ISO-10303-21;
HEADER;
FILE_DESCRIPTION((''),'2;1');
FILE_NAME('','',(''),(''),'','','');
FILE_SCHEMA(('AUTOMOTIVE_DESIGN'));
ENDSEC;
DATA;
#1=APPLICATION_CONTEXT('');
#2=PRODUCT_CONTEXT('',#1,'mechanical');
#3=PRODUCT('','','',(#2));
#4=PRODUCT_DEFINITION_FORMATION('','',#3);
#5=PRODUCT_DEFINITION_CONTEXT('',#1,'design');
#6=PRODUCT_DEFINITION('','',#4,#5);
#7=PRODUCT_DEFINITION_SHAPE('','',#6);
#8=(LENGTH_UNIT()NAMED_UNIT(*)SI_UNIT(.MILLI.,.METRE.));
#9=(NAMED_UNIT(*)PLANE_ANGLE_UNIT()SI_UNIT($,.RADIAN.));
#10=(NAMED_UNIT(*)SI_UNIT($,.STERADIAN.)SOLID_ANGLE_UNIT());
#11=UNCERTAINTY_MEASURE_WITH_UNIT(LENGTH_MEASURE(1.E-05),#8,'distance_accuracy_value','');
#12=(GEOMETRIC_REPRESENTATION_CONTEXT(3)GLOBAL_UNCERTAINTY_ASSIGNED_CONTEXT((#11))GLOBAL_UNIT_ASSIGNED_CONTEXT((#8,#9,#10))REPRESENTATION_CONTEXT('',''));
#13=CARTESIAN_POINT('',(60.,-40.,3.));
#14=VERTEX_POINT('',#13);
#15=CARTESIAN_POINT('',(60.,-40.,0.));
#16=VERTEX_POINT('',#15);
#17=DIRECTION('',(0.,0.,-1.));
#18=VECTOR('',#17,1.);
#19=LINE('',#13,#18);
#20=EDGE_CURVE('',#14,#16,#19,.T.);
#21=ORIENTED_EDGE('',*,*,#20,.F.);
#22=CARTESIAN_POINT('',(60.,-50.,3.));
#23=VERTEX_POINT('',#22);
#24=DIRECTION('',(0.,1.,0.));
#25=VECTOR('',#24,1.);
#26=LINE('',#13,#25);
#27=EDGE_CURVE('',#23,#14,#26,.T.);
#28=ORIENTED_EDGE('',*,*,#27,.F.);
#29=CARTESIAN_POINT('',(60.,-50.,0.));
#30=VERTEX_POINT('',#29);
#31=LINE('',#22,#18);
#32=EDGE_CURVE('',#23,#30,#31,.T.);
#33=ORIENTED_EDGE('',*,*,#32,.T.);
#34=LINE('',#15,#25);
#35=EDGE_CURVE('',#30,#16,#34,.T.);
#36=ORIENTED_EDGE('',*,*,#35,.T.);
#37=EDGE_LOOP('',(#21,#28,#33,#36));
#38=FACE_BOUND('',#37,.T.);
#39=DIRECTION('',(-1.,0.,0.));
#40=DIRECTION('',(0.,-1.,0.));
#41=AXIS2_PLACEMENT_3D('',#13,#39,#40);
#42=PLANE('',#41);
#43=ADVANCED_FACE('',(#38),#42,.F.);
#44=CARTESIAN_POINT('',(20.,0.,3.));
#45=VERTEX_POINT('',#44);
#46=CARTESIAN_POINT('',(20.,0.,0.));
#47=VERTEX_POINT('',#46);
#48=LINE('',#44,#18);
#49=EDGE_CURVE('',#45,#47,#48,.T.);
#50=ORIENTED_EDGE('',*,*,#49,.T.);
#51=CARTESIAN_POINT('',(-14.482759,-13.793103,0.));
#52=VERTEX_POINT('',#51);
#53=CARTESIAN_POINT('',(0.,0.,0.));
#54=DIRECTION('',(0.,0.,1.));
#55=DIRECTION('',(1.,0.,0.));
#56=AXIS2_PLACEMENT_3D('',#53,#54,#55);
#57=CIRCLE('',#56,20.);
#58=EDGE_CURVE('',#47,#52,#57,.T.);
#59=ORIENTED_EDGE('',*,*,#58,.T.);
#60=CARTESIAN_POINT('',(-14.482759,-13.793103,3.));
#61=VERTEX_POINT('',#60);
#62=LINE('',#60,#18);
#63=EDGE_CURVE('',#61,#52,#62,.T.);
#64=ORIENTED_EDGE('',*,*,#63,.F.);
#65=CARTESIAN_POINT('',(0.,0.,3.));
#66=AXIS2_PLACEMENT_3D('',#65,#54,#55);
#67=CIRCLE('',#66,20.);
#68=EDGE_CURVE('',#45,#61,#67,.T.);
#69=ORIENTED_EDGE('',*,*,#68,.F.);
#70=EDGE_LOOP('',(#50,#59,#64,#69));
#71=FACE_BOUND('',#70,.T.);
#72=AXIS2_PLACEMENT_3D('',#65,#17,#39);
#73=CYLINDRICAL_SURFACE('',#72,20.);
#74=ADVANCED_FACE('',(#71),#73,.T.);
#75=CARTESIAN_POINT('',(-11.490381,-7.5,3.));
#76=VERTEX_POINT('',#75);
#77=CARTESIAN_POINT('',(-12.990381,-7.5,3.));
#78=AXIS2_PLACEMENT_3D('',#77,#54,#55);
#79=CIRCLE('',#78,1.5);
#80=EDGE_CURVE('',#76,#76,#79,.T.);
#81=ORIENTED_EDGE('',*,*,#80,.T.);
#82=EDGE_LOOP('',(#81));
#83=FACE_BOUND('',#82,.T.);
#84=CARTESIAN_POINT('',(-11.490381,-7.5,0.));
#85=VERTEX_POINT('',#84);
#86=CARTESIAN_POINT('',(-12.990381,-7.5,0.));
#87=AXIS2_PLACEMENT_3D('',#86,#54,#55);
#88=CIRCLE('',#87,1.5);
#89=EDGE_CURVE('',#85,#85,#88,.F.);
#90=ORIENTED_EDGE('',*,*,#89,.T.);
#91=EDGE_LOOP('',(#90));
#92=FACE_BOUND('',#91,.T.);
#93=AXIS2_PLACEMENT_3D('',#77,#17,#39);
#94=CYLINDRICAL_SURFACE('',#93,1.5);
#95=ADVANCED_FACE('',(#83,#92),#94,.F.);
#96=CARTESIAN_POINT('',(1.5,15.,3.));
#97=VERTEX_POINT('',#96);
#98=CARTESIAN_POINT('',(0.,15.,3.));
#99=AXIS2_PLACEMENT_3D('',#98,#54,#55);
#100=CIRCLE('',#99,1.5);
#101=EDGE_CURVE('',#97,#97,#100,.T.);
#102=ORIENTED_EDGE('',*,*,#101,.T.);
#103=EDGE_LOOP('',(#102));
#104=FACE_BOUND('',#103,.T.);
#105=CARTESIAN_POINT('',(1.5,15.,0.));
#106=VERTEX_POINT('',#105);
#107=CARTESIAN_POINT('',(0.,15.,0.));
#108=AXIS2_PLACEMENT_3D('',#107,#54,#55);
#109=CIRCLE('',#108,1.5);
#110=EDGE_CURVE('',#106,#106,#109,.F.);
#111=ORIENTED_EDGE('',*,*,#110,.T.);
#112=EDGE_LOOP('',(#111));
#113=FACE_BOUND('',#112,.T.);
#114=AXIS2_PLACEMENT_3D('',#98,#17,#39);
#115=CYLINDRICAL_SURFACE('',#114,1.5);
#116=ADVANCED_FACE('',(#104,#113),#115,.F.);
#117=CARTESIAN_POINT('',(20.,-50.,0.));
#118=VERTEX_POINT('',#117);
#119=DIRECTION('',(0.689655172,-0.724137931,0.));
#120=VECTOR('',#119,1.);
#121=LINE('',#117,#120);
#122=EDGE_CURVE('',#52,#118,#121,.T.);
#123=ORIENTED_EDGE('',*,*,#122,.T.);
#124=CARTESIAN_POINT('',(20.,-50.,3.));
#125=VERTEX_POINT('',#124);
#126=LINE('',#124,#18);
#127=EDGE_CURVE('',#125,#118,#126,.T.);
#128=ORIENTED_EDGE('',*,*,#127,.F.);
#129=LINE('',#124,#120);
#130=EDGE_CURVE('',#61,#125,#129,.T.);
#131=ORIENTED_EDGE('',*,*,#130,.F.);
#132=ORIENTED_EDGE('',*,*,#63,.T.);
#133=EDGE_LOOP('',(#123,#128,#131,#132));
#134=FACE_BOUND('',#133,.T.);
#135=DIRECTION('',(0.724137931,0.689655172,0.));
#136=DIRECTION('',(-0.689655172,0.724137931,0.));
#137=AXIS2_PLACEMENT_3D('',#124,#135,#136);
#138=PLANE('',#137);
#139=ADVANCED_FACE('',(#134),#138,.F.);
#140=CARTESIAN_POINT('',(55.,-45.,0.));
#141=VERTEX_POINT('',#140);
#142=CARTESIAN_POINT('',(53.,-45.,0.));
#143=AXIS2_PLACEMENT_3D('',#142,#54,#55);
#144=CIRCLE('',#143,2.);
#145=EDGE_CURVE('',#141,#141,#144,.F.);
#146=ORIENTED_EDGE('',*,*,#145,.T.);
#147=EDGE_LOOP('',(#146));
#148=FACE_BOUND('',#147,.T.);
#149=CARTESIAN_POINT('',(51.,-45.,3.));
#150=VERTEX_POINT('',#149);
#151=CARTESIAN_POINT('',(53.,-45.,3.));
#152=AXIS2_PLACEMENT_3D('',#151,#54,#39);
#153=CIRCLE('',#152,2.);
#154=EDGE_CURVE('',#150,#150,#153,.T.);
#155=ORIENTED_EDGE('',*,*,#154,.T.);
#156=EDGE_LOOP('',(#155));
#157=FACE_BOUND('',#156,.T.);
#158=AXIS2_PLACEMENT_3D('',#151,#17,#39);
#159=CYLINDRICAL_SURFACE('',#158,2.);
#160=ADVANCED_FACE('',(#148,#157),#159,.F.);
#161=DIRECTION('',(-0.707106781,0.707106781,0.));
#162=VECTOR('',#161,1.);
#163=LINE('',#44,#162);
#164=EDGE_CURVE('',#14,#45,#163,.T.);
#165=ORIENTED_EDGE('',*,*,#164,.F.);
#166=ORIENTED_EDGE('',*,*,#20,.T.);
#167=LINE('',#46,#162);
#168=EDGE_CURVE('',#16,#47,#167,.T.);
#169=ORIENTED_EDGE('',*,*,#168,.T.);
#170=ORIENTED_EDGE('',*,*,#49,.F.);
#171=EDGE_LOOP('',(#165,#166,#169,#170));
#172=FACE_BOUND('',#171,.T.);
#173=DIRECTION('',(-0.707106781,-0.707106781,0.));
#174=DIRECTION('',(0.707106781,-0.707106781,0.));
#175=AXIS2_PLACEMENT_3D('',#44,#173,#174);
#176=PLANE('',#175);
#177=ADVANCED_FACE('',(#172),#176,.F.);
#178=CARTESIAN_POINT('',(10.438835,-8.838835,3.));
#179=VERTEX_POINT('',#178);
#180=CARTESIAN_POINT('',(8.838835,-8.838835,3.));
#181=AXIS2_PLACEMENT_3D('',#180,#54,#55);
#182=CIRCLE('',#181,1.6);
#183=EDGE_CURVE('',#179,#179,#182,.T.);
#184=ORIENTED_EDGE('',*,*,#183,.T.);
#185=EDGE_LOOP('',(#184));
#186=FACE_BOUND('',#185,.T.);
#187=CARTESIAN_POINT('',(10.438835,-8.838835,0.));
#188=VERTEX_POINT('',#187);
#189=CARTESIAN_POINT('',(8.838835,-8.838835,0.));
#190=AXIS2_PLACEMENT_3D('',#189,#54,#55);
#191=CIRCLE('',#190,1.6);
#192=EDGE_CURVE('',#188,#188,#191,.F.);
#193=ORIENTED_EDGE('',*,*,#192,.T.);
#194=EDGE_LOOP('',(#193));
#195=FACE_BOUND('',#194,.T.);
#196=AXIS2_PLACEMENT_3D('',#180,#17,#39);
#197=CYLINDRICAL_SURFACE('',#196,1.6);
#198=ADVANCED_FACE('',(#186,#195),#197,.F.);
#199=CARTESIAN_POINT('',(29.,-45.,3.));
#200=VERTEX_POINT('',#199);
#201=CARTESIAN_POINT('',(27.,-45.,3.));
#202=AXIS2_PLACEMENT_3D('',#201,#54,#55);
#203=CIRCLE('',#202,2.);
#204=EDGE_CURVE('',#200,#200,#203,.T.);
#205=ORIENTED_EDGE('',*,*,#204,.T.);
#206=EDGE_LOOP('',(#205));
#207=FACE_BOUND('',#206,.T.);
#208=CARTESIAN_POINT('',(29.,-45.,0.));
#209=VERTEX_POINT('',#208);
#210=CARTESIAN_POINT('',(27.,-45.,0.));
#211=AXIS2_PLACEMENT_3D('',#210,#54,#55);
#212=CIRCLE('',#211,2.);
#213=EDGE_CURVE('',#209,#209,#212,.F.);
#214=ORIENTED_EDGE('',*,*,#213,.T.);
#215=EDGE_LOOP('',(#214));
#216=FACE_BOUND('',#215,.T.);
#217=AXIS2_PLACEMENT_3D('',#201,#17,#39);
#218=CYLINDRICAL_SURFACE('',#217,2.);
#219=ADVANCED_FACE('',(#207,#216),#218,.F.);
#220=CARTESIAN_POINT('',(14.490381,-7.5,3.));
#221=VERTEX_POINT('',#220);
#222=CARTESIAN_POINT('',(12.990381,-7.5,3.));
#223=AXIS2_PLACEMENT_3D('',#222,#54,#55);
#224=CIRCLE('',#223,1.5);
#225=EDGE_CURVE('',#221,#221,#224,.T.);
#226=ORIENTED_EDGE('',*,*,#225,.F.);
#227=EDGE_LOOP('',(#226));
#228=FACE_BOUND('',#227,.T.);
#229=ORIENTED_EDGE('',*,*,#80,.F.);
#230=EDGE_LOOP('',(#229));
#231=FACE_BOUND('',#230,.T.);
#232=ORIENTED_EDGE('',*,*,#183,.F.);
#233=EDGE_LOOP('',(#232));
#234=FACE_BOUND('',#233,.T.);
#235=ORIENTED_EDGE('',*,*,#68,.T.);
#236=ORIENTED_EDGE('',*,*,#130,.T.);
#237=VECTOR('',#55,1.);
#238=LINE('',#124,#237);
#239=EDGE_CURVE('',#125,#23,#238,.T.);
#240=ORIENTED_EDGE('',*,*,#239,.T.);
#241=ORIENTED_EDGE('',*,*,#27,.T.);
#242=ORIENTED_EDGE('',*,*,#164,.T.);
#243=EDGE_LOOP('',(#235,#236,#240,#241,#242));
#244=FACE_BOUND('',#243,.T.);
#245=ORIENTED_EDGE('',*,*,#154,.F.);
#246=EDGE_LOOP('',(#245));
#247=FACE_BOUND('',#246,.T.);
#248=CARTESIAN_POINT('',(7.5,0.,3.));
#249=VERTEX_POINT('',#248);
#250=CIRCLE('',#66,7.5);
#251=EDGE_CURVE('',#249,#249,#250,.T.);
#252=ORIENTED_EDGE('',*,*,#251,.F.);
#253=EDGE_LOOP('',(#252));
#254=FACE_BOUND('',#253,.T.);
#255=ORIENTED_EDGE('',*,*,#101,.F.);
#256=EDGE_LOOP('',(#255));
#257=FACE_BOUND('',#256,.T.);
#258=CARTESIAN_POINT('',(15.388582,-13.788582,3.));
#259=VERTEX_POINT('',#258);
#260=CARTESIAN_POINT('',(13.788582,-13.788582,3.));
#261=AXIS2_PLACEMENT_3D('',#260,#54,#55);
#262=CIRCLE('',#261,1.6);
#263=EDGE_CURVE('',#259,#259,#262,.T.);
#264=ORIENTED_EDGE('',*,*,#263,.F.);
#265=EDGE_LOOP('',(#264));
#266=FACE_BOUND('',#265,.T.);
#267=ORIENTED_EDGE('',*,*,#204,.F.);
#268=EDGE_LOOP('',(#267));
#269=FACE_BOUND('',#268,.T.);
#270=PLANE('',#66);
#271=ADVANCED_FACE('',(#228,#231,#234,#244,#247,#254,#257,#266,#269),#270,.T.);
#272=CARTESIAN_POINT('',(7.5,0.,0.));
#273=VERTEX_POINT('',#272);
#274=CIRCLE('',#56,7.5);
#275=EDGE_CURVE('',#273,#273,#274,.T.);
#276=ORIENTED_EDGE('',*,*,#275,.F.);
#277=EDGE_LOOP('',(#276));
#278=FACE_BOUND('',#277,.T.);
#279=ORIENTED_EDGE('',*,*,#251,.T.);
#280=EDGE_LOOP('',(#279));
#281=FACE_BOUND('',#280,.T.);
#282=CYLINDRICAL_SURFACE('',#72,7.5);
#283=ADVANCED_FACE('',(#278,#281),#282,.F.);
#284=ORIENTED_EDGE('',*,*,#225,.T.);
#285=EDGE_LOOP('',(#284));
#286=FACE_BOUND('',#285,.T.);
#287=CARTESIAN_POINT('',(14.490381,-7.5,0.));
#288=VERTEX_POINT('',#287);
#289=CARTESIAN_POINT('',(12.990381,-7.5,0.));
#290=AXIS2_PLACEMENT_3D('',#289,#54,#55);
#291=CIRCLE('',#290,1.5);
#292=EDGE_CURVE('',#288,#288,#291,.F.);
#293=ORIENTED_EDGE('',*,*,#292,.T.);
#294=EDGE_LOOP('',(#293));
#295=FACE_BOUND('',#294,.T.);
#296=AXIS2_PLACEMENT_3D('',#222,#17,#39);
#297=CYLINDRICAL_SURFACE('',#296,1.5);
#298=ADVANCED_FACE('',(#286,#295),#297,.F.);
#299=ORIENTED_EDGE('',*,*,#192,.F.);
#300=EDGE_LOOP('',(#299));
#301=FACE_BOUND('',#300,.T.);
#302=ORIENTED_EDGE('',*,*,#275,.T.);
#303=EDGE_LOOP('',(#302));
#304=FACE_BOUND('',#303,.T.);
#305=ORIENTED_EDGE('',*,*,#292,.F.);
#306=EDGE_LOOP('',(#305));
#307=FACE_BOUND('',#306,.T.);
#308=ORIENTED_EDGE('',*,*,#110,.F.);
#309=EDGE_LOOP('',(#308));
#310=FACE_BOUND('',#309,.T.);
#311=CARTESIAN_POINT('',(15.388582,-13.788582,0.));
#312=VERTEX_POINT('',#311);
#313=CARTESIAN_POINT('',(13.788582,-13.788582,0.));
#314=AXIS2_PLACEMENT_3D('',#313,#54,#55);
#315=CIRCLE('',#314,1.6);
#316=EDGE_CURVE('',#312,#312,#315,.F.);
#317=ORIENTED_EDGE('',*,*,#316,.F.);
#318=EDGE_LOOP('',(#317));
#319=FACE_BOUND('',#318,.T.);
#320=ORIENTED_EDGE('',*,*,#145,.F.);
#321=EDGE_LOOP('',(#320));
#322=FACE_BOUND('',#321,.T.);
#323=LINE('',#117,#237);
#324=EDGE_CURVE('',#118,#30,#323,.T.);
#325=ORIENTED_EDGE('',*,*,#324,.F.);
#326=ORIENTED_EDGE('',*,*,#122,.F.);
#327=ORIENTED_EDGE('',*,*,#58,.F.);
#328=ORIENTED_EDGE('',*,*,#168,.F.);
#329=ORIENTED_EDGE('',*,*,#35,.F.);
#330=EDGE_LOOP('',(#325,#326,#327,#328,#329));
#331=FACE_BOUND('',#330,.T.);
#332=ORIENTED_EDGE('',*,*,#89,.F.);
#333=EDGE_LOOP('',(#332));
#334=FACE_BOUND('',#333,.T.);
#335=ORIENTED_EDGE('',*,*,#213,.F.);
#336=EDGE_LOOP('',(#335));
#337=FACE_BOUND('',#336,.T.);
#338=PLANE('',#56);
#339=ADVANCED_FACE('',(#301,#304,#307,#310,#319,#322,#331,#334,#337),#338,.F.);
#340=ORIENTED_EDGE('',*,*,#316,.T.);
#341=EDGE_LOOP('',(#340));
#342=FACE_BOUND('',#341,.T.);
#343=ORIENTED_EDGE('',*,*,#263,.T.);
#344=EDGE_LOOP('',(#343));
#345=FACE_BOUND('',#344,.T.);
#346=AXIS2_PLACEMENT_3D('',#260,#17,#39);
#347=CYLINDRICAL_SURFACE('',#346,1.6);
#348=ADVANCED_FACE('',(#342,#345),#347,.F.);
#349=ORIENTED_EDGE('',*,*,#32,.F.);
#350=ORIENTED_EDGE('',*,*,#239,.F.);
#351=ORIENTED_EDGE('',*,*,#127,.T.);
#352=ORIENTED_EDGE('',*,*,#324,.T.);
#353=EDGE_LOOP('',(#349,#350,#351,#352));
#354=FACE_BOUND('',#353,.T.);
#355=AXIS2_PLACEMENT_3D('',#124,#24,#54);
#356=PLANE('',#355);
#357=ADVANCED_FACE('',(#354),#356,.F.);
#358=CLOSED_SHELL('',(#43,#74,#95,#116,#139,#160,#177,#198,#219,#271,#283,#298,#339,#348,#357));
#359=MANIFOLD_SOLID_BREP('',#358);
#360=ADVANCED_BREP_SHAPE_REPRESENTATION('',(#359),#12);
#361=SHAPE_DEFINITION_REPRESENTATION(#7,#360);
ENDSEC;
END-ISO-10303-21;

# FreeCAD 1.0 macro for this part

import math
import FreeCAD as App
import Part
import Sketcher
Q = App.Units.Quantity

doc = App.newDocument("Part")
body = doc.addObject("PartDesign::Body", "Body")

sketch1 = doc.addObject("Sketcher::SketchObject", "Sketch")
body.addObject(sketch1)
sketch1.AttachmentSupport = (doc.XY_Plane, [""])
sketch1.MapMode = "FlatFace"
sketch1.addGeometry(Part.LineSegment(App.Vector(-14.5, -13.8, 0), App.Vector(20, -50, 0)), False)
sketch1.addGeometry(Part.LineSegment(App.Vector(20, -50, 0), App.Vector(60, -50, 0)), False)
sketch1.addGeometry(Part.LineSegment(App.Vector(60, -50, 0), App.Vector(60, -40, 0)), False)
sketch1.addGeometry(Part.LineSegment(App.Vector(60, -40, 0), App.Vector(20, 0, 0)), False)
sketch1.addGeometry(Part.LineSegment(App.Vector(20, 0, 0), App.Vector(70.7, 35.3, 0)), False)
sketch1.addGeometry(Part.ArcOfCircle(Part.Circle(App.Vector(65, 43.5, 0), App.Vector(0, 0, 1), 10), math.radians(-55), math.radians(116)), False)
sketch1.addGeometry(Part.LineSegment(App.Vector(60.5, 52.5, 0), App.Vector(-8.9, 17.9, 0)), False)
sketch1.addGeometry(Part.ArcOfCircle(Part.Circle(App.Vector(0, 0, 0), App.Vector(0, 0, 1), 20), math.radians(116), math.radians(224)), False)
sketch1.addGeometry(Part.Circle(App.Vector(0, 0, 0), App.Vector(0, 0, 1), 7.5), False)
sketch1.addGeometry(Part.Circle(App.Vector(65, 43.5, 0), App.Vector(0, 0, 1), 4), False)
sketch1.addConstraint(Sketcher.Constraint("Coincident", 0, 2, 1, 1))
sketch1.addConstraint(Sketcher.Constraint("Coincident", 1, 2, 2, 1))
sketch1.addConstraint(Sketcher.Constraint("Coincident", 2, 2, 3, 1))
sketch1.addConstraint(Sketcher.Constraint("Coincident", 3, 2, 4, 1))
sketch1.addConstraint(Sketcher.Constraint("Tangent", 4, 2, 5, 1))
sketch1.addConstraint(Sketcher.Constraint("Tangent", 5, 2, 6, 1))
sketch1.addConstraint(Sketcher.Constraint("Tangent", 6, 2, 7, 1))
sketch1.addConstraint(Sketcher.Constraint("Tangent", 7, 2, 0, 1))
sketch1.addConstraint(Sketcher.Constraint("Horizontal", 1))
sketch1.addConstraint(Sketcher.Constraint("Vertical", 2))
sketch1.addConstraint(Sketcher.Constraint("Coincident", 7, 3, -1, 1))
sketch1.addConstraint(Sketcher.Constraint("Coincident", 8, 3, -1, 1))
sketch1.addConstraint(Sketcher.Constraint("Coincident", 9, 3, 5, 3))
sketch1.addConstraint(Sketcher.Constraint("PointOnObject", 3, 2, -1))
sketch1.addConstraint(Sketcher.Constraint("Vertical", 0, 2, 3, 2))
sketch1.addConstraint(Sketcher.Constraint("Diameter", 8, Q("15 mm")))
sketch1.addConstraint(Sketcher.Constraint("Diameter", 9, Q("8 mm")))
sketch1.addConstraint(Sketcher.Constraint("Radius", 5, Q("10 mm")))
sketch1.addConstraint(Sketcher.Constraint("Radius", 7, Q("20 mm")))
sketch1.addConstraint(Sketcher.Constraint("DistanceX", 1, 1, 1, 2, Q("40 mm")))
sketch1.addConstraint(Sketcher.Constraint("DistanceY", 2, 1, 2, 2, Q("10 mm")))
sketch1.addConstraint(Sketcher.Constraint("Angle", 3, Q("135 deg")))
sketch1.addConstraint(Sketcher.Constraint("Distance", 0, Q("50 mm")))
sketch1.addConstraint(Sketcher.Constraint("DistanceX", -1, 1, 5, 3, Q("65 mm")))
sketch1.addConstraint(Sketcher.Constraint("DistanceY", -1, 1, 5, 3, Q("43.5 mm")))
pad1 = doc.addObject("PartDesign::Pad", "Pad")
body.addObject(pad1)
pad1.Profile = sketch1
pad1.Length = 3

sketch2 = doc.addObject("Sketcher::SketchObject", "Sketch001")
body.addObject(sketch2)
sketch2.AttachmentSupport = (doc.XY_Plane, [""])
sketch2.MapMode = "FlatFace"
sketch2.addGeometry(Part.Circle(App.Vector(0, 15, 0), App.Vector(0, 0, 1), 1.5), False)
sketch2.addGeometry(Part.Circle(App.Vector(13, -7.5, 0), App.Vector(0, 0, 1), 1.5), False)
sketch2.addGeometry(Part.Circle(App.Vector(-13, -7.5, 0), App.Vector(0, 0, 1), 1.5), False)
sketch2.addGeometry(Part.Circle(App.Vector(13.8, -13.8, 0), App.Vector(0, 0, 1), 1.6), False)
sketch2.addGeometry(Part.Circle(App.Vector(8.8, -8.8, 0), App.Vector(0, 0, 1), 1.6), False)
sketch2.addConstraint(Sketcher.Constraint("Equal", 0, 1))
sketch2.addConstraint(Sketcher.Constraint("Equal", 1, 2))
sketch2.addConstraint(Sketcher.Constraint("Equal", 3, 4))
sketch2.addConstraint(Sketcher.Constraint("Symmetric", 1, 3, 2, 3, -2))
sketch2.addConstraint(Sketcher.Constraint("PointOnObject", 0, 3, -2))
sketch2.addConstraint(Sketcher.Constraint("Diameter", 0, Q("3 mm")))
sketch2.addConstraint(Sketcher.Constraint("Diameter", 3, Q("3.2 mm")))
sketch2.addConstraint(Sketcher.Constraint("DistanceY", -1, 1, 0, 3, Q("15 mm")))
sketch2.addConstraint(Sketcher.Constraint("DistanceY", 1, 3, -1, 1, Q("7.5 mm")))
sketch2.addConstraint(Sketcher.Constraint("DistanceX", 1, 3, 3, 3, Q("0.798201 mm")))
sketch2.addConstraint(Sketcher.Constraint("DistanceX", -1, 1, 1, 3, Q("12.990381 mm")))
sketch2.addConstraint(Sketcher.Constraint("DistanceY", 3, 3, -1, 1, Q("13.788582 mm")))
sketch2.addConstraint(Sketcher.Constraint("DistanceX", -1, 1, 4, 3, Q("8.838835 mm")))
sketch2.addConstraint(Sketcher.Constraint("DistanceY", 4, 3, -1, 1, Q("8.838835 mm")))
pocket1 = doc.addObject("PartDesign::Pocket", "Pocket")
body.addObject(pocket1)
pocket1.Profile = sketch2
pocket1.Type = "ThroughAll"
pocket1.Midplane = True

sketch3 = doc.addObject("Sketcher::SketchObject", "Sketch002")
body.addObject(sketch3)
sketch3.AttachmentSupport = (doc.XY_Plane, [""])
sketch3.MapMode = "FlatFace"
sketch3.addGeometry(Part.Circle(App.Vector(27, -45, 0), App.Vector(0, 0, 1), 2), False)
sketch3.addGeometry(Part.Circle(App.Vector(53, -45, 0), App.Vector(0, 0, 1), 2), False)
sketch3.addConstraint(Sketcher.Constraint("Equal", 0, 1))
sketch3.addConstraint(Sketcher.Constraint("Horizontal", 0, 3, 1, 3))
sketch3.addConstraint(Sketcher.Constraint("Diameter", 0, Q("4 mm")))
sketch3.addConstraint(Sketcher.Constraint("DistanceX", -1, 1, 0, 3, Q("27 mm")))
sketch3.addConstraint(Sketcher.Constraint("DistanceY", 0, 3, -1, 1, Q("45 mm")))
sketch3.addConstraint(Sketcher.Constraint("DistanceX", -1, 1, 1, 3, Q("53 mm")))
pocket2 = doc.addObject("PartDesign::Pocket", "Pocket001")
body.addObject(pocket2)
pocket2.Profile = sketch3
pocket2.Type = "ThroughAll"
pocket2.Midplane = True

sketch4 = doc.addObject("Sketcher::SketchObject", "Sketch003")
body.addObject(sketch4)
sketch4.AttachmentSupport = (doc.XY_Plane, [""])
sketch4.MapMode = "FlatFace"
sketch4.addGeometry(Part.LineSegment(App.Vector(61, 52, 0), App.Vector(-9, 18, 0)), False)
sketch4.addGeometry(Part.ArcOfCircle(Part.Circle(App.Vector(0, 0, 0), App.Vector(0, 0, 1), 20), math.radians(0), math.radians(116)), False)
sketch4.addGeometry(Part.LineSegment(App.Vector(20, 0, 0), App.Vector(71, 35, 0)), False)
sketch4.addGeometry(Part.ArcOfCircle(Part.Circle(App.Vector(65, 44, 0), App.Vector(0, 0, 1), 10), math.radians(-55), math.radians(116)), False)
sketch4.addConstraint(Sketcher.Constraint("Tangent", 0, 2, 1, 2))
sketch4.addConstraint(Sketcher.Constraint("Coincident", 1, 1, 2, 1))
sketch4.addConstraint(Sketcher.Constraint("Tangent", 2, 2, 3, 1))
sketch4.addConstraint(Sketcher.Constraint("Tangent", 3, 2, 0, 1))
sketch4.addConstraint(Sketcher.Constraint("Coincident", 1, 3, -1, 1))
sketch4.addConstraint(Sketcher.Constraint("PointOnObject", 1, 1, -1))
sketch4.addConstraint(Sketcher.Constraint("Radius", 1, Q("20 mm")))
sketch4.addConstraint(Sketcher.Constraint("Radius", 3, Q("10 mm")))
sketch4.addConstraint(Sketcher.Constraint("DistanceX", -1, 1, 3, 3, Q("65 mm")))
sketch4.addConstraint(Sketcher.Constraint("DistanceY", -1, 1, 3, 3, Q("43.5 mm")))
pocket3 = doc.addObject("PartDesign::Pocket", "Pocket002")
body.addObject(pocket3)
pocket3.Profile = sketch4
pocket3.Length = 10
pocket3.Reversed = True

doc.recompute()
